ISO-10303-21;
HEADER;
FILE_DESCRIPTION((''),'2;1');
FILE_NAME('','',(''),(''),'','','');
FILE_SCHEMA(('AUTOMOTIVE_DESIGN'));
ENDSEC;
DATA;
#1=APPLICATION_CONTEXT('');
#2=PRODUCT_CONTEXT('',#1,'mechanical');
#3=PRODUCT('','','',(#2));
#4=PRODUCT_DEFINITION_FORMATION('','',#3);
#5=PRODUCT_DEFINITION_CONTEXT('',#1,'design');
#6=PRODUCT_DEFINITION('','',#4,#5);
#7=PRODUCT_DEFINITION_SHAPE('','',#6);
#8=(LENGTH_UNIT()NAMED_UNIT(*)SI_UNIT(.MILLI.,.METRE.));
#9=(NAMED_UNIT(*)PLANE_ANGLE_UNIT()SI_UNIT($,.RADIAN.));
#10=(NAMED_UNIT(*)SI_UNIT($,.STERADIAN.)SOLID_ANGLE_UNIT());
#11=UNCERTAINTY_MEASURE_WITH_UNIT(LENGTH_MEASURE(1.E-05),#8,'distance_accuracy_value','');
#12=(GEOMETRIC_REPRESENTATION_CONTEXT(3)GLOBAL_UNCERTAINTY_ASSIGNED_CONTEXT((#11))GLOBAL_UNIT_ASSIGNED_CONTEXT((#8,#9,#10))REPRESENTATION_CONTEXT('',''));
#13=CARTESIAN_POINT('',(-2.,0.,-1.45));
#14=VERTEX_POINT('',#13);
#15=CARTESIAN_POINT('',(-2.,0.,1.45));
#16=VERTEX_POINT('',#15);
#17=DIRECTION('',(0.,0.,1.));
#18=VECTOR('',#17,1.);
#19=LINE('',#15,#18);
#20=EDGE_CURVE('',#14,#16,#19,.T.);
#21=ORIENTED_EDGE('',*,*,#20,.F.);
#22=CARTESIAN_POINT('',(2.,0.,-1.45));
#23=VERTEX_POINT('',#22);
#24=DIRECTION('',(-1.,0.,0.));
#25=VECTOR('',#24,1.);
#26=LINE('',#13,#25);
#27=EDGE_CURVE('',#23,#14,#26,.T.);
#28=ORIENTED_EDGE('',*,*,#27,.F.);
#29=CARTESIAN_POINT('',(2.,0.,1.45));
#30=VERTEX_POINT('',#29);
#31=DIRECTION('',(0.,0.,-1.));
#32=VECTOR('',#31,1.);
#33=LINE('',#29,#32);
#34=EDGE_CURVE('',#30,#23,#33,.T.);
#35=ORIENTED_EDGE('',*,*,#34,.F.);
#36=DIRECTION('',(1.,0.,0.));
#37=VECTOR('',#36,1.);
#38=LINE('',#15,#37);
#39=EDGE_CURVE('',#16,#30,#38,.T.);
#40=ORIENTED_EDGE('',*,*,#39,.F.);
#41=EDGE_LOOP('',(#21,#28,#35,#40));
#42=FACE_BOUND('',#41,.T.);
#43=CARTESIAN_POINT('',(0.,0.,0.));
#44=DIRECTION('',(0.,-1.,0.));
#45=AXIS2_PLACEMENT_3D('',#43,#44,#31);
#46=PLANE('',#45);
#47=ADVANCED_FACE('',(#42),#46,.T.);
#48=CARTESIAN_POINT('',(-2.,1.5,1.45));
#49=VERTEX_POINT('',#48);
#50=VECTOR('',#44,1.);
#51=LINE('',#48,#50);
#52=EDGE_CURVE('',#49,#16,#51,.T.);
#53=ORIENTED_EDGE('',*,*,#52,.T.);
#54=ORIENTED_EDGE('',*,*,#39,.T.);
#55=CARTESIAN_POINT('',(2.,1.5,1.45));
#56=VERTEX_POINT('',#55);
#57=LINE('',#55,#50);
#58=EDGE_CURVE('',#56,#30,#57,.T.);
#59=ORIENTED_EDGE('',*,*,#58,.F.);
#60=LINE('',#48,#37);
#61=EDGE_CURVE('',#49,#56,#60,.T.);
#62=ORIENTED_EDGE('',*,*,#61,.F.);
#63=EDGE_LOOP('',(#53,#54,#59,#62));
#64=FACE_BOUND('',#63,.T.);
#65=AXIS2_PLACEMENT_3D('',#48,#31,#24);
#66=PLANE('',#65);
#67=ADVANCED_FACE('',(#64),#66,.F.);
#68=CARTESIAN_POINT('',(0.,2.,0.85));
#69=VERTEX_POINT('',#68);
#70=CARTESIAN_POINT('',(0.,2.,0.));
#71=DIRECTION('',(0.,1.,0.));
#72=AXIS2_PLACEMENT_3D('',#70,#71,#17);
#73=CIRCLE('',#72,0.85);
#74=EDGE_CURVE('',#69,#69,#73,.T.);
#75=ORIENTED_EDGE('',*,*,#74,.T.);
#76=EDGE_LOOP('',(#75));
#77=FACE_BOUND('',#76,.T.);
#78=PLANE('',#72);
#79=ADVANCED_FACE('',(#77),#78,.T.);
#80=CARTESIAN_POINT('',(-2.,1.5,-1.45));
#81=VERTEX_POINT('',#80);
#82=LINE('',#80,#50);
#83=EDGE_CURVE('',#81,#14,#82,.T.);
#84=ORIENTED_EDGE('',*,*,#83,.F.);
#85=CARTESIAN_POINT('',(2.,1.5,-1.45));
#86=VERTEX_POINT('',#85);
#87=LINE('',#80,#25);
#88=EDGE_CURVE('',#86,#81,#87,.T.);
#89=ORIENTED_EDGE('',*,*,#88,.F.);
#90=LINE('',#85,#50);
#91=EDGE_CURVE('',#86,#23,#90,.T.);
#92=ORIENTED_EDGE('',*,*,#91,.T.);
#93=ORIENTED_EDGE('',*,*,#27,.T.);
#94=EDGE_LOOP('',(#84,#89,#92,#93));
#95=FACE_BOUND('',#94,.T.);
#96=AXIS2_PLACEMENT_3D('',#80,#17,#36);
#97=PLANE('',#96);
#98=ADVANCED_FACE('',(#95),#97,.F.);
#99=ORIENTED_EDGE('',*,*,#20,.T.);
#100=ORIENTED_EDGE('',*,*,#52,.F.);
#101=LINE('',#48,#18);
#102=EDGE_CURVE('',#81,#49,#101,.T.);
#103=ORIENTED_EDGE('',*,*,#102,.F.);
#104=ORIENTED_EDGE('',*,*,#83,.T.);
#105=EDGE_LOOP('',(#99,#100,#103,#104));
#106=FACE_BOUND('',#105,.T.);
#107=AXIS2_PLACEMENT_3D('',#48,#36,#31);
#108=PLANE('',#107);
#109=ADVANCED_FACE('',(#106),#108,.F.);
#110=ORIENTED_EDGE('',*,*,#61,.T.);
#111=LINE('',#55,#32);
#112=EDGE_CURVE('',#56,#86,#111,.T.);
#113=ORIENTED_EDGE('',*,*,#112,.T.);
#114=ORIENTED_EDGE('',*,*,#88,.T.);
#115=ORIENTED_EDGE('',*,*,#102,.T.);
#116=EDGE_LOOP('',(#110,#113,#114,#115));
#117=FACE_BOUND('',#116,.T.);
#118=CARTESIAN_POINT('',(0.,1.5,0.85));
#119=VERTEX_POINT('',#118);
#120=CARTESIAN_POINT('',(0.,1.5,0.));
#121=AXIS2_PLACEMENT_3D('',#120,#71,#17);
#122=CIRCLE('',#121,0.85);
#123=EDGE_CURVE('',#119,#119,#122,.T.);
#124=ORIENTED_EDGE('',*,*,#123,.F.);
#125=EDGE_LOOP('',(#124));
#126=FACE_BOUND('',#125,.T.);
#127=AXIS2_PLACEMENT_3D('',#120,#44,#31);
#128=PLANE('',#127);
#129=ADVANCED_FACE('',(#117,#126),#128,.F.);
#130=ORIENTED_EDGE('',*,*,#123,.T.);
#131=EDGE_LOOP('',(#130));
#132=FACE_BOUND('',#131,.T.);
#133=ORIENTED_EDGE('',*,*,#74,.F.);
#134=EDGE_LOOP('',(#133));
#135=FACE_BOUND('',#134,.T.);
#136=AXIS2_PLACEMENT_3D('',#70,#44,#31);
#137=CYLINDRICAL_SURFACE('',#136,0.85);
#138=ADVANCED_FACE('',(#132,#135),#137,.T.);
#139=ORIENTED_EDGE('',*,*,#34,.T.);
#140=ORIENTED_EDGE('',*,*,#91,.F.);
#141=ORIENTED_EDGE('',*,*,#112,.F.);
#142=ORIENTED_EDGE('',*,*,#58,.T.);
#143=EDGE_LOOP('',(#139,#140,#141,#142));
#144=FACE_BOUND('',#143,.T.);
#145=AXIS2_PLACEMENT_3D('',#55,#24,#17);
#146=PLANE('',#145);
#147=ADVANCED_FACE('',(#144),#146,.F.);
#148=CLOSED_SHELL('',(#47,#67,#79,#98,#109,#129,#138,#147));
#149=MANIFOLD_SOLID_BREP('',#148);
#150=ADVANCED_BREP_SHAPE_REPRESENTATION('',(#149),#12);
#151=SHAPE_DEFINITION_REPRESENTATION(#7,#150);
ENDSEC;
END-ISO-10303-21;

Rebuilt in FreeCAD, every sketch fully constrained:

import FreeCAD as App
import Part
import Sketcher

V = App.Vector

doc = App.newDocument("Part")
body = doc.addObject("PartDesign::Body", "Body")

# Sketch on XZ plane
sketch1 = doc.addObject("Sketcher::SketchObject", "Sketch")
body.addObject(sketch1)
sketch1.AttachmentSupport = (doc.XZ_Plane, [""])
sketch1.MapMode = "FlatFace"
sketch1.addGeometry([
    Part.LineSegment(V(-2, -1.45, 0), V(-2, 1.45, 0)),
    Part.LineSegment(V(-2, 1.45, 0), V(2, 1.45, 0)),
    Part.LineSegment(V(2, 1.45, 0), V(2, -1.45, 0)),
    Part.LineSegment(V(2, -1.45, 0), V(-2, -1.45, 0)),
], False)
sketch1.addConstraint([
    Sketcher.Constraint("Coincident", 0, 2, 1, 1),
    Sketcher.Constraint("Coincident", 1, 2, 2, 1),
    Sketcher.Constraint("Coincident", 2, 2, 3, 1),
    Sketcher.Constraint("Coincident", 3, 2, 0, 1),
    Sketcher.Constraint("Vertical", 0),
    Sketcher.Constraint("Horizontal", 1),
    Sketcher.Constraint("Vertical", 2),
    Sketcher.Constraint("Horizontal", 3),
    Sketcher.Constraint("Symmetric", 0, 2, 2, 2, -1, 1),
    Sketcher.Constraint("DistanceX", 1, 1, 1, 2, 4.0),
    Sketcher.Constraint("DistanceY", 0, 1, 0, 2, 2.9),
])
pad1 = doc.addObject("PartDesign::Pad", "Pad")
body.addObject(pad1)
pad1.Profile = sketch1
pad1.Length = 1.5
pad1.Reversed = True

# Sketch on XZ plane
sketch2 = doc.addObject("Sketcher::SketchObject", "Sketch001")
body.addObject(sketch2)
sketch2.AttachmentSupport = (doc.XZ_Plane, [""])
sketch2.MapMode = "FlatFace"
sketch2.AttachmentOffset = App.Placement(V(0, 0, -1.5), App.Rotation())
sketch2.addGeometry(Part.Circle(V(0, 0, 0), V(0, 0, 1), 0.85), False)
sketch2.addConstraint([
    Sketcher.Constraint("Coincident", 0, 3, -1, 1),
    Sketcher.Constraint("Diameter", 0, 1.7),
])
pad2 = doc.addObject("PartDesign::Pad", "Pad001")
body.addObject(pad2)
pad2.Profile = sketch2
pad2.Length = 0.5
pad2.Reversed = True

doc.recompute()
